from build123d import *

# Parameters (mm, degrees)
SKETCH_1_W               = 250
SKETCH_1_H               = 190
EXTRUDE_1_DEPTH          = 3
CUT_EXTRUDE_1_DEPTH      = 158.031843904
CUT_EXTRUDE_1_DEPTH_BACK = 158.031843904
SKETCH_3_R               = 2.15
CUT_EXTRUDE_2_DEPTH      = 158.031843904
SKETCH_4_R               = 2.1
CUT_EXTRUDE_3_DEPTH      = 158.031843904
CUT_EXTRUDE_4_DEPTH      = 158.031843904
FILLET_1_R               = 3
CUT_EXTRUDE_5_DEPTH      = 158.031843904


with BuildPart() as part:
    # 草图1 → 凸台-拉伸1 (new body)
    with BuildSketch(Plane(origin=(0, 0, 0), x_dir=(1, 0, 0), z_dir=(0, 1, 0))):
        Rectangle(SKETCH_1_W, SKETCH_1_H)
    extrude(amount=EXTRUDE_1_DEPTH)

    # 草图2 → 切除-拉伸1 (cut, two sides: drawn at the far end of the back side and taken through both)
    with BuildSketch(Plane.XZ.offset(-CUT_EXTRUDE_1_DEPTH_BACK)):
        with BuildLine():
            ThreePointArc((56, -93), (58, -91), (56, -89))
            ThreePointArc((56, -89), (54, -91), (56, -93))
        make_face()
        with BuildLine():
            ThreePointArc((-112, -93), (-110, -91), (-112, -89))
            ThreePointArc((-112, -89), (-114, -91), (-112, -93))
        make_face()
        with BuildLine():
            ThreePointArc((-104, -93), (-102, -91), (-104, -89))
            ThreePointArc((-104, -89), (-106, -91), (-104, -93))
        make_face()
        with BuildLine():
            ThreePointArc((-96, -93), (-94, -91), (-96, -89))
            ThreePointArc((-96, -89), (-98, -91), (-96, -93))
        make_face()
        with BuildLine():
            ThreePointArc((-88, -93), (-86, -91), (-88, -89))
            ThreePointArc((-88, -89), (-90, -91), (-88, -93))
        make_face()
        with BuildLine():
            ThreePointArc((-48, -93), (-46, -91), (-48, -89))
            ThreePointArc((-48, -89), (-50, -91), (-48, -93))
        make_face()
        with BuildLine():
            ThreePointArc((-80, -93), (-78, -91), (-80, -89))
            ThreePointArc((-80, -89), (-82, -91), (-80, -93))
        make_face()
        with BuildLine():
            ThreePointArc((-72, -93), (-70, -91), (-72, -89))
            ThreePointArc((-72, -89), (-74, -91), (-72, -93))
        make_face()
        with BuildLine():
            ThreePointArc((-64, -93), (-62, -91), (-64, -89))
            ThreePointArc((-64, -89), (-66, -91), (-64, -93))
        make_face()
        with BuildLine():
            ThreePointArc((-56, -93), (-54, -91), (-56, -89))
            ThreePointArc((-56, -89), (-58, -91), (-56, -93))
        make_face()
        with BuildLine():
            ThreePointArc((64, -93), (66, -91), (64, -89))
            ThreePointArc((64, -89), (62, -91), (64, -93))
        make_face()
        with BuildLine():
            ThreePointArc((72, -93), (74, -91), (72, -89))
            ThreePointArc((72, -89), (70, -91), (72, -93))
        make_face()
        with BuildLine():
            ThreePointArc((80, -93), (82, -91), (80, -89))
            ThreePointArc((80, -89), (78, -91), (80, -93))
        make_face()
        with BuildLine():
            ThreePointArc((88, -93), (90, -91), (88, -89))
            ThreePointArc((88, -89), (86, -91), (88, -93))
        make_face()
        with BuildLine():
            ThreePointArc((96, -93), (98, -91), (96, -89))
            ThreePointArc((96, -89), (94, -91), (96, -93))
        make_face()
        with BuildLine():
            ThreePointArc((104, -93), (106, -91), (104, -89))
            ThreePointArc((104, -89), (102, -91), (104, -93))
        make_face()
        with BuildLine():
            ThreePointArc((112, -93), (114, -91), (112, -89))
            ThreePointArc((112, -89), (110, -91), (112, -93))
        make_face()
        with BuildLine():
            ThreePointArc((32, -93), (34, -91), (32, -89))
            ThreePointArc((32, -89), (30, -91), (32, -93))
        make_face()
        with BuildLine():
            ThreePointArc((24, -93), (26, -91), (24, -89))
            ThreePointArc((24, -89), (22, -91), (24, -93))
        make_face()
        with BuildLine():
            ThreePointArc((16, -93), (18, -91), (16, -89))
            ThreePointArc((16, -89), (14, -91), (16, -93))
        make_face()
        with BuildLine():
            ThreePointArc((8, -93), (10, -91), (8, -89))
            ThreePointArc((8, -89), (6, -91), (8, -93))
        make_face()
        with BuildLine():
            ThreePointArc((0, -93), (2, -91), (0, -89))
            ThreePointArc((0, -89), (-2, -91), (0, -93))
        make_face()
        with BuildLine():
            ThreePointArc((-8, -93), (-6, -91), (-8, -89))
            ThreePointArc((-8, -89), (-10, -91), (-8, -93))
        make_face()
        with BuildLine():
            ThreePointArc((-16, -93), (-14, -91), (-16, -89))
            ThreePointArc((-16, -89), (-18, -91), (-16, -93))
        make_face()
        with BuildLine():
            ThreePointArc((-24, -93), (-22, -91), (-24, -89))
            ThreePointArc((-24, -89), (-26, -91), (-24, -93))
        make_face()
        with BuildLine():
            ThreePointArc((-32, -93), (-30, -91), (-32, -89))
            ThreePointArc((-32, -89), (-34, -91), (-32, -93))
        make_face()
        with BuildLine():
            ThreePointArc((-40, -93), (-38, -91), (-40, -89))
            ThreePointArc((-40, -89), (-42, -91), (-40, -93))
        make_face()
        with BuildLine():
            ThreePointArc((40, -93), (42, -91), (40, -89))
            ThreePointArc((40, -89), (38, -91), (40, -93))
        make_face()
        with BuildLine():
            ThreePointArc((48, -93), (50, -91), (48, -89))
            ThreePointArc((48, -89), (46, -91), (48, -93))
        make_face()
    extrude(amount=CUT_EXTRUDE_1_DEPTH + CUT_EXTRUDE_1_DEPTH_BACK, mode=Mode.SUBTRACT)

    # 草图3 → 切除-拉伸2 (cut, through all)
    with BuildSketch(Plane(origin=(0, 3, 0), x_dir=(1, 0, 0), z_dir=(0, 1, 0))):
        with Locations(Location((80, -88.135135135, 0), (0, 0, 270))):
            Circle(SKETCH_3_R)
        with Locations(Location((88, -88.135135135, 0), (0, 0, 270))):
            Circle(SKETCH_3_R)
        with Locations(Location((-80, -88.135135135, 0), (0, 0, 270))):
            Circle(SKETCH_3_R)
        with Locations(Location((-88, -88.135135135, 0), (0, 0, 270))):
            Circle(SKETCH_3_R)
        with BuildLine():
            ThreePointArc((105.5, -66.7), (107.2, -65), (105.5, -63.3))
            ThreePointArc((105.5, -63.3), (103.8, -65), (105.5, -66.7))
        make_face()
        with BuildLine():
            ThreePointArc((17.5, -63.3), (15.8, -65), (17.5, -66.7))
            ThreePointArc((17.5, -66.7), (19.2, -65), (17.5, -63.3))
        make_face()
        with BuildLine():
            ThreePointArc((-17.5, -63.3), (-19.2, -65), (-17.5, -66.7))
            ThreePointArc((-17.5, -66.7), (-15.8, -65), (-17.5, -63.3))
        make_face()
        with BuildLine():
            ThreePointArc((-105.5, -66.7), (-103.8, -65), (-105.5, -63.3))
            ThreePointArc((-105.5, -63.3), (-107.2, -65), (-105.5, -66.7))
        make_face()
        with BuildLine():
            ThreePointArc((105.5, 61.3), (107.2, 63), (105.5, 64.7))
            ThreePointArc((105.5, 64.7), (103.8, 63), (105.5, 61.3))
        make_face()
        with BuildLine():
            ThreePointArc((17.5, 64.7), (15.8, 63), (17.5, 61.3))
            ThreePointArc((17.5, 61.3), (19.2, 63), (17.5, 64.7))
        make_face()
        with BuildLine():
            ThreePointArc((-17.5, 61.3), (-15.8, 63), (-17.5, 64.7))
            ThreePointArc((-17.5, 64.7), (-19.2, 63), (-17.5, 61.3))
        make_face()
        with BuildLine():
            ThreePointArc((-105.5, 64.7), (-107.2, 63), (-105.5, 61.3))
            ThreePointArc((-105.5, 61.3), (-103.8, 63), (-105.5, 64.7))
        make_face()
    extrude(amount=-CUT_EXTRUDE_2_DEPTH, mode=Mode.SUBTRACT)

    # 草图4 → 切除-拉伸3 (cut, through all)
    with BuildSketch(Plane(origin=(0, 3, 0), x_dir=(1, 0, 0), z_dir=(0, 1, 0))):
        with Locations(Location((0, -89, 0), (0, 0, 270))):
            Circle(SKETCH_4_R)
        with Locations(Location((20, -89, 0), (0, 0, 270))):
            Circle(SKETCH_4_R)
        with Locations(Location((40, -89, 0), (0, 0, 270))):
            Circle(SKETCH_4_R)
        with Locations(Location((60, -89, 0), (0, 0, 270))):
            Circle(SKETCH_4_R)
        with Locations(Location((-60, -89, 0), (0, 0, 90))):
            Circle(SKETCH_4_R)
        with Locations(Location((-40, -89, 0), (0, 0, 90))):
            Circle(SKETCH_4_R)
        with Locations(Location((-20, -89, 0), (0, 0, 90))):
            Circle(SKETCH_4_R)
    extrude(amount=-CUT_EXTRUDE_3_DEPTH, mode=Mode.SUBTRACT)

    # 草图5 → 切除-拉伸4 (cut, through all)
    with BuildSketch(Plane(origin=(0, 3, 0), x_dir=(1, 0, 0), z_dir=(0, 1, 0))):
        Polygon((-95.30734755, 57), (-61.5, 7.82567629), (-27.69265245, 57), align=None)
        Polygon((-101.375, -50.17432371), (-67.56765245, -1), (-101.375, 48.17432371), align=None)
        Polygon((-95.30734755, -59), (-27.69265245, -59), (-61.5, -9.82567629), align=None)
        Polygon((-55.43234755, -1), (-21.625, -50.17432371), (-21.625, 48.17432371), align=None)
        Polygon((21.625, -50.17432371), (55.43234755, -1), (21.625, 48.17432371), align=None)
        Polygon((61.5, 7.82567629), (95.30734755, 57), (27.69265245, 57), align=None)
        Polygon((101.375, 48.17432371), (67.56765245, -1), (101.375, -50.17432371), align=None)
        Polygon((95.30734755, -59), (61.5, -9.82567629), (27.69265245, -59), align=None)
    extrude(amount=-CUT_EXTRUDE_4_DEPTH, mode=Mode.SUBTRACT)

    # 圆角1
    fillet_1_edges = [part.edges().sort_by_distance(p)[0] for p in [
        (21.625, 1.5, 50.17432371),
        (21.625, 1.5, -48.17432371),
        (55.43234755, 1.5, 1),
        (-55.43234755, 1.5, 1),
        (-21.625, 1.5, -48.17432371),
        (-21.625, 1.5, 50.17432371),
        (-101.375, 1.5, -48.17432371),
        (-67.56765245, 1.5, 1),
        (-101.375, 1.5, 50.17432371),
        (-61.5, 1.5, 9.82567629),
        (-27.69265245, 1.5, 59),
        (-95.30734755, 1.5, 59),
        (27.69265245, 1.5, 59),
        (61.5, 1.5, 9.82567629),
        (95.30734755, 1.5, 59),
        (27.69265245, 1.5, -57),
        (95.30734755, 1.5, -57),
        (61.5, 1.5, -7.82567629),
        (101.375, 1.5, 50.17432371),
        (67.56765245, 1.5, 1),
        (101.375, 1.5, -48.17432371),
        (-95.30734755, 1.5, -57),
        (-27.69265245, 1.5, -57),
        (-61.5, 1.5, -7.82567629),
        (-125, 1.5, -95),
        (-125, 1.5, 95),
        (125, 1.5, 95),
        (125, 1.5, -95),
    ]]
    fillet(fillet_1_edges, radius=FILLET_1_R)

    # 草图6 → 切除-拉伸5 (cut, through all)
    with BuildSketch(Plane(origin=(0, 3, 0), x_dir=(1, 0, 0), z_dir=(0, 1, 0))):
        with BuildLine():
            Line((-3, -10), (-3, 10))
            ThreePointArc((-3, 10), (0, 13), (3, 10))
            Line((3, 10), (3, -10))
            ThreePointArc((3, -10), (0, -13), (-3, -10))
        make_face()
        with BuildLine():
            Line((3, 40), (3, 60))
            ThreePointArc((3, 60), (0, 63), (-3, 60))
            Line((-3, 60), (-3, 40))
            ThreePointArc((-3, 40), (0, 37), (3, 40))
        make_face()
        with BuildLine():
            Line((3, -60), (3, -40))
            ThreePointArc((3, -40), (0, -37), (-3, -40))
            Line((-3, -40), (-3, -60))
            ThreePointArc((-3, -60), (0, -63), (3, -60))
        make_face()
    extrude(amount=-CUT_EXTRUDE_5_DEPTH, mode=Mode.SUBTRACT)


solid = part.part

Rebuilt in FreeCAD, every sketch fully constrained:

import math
import FreeCAD as App
import Part
import Sketcher
from FreeCAD import Vector
Q = App.Units.Quantity


def edges_at(feature, points):
    """Names of the edges that pass closest to the given points."""
    edges = feature.Shape.Edges
    near = lambda p: min(range(len(edges)), key=lambda i: edges[i].distToShape(Part.Vertex(*p))[0])
    return sorted({f"Edge{near(p) + 1}" for p in points})

doc = App.newDocument("Part")
params = doc.addObject("Spreadsheet::Sheet", "Params")
for row, (alias, value) in enumerate([
    ("sketch1_width", "250 mm"),
    ("sketch1_height", "190 mm"),
    ("pad1_length", "3 mm"),
    ("sketch2_diameter", "4 mm"),
    ("sketch3_diameter", "4.3 mm"),
    ("sketch3_diameter2", "3.4 mm"),
    ("sketch4_diameter", "4.2 mm"),
    ("fillet_radius", "3 mm"),
    ("sketch6_radius", "3 mm"),
    ("sketch6_height", "20 mm"),
], start=1):
    params.set(f"A{row}", alias)
    params.set(f"B{row}", "=" + value)
    params.setAlias(f"B{row}", alias)

body = doc.addObject("PartDesign::Body", "Body")

# Sketch on XZ plane
sketch1 = body.newObject("Sketcher::SketchObject", "Sketch")
sketch1.AttachmentSupport = (doc.getObject("XZ_Plane"), [""])
sketch1.MapMode = "FlatFace"
sketch1.addGeometry([
    Part.LineSegment(Vector(-125, -95, 0), Vector(-125, 95, 0)),
    Part.LineSegment(Vector(-125, 95, 0), Vector(125, 95, 0)),
    Part.LineSegment(Vector(125, 95, 0), Vector(125, -95, 0)),
    Part.LineSegment(Vector(125, -95, 0), Vector(-125, -95, 0)),
], False)
sketch1.addConstraint([
    Sketcher.Constraint("Coincident", 0, 2, 1, 1),
    Sketcher.Constraint("Coincident", 1, 2, 2, 1),
    Sketcher.Constraint("Coincident", 2, 2, 3, 1),
    Sketcher.Constraint("Coincident", 3, 2, 0, 1),
    Sketcher.Constraint("Vertical", 0),
    Sketcher.Constraint("Horizontal", 1),
    Sketcher.Constraint("Vertical", 2),
    Sketcher.Constraint("Horizontal", 3),
    Sketcher.Constraint("Symmetric", 0, 2, 2, 2, -1, 1),
    Sketcher.Constraint("DistanceX", 1, 1, 1, 2, Q("250 mm")),
    Sketcher.Constraint("DistanceY", 0, 1, 0, 2, Q("190 mm")),
])
sketch1.setExpression("Constraints[9]", "Params.sketch1_width")
sketch1.setExpression("Constraints[10]", "Params.sketch1_height")
pad1 = body.newObject("PartDesign::Pad", "Pad")
pad1.Profile = sketch1
pad1.setExpression("Length", "Params.pad1_length")
pad1.Reversed = True

# Sketch on XZ plane
sketch2 = body.newObject("Sketcher::SketchObject", "Sketch001")
sketch2.AttachmentSupport = (doc.getObject("XZ_Plane"), [""])
sketch2.MapMode = "FlatFace"
sketch2.addGeometry([
    Part.Circle(Vector(56, -91, 0), Vector(0, 0, 1), 2),  # 0
    Part.Circle(Vector(-112, -91, 0), Vector(0, 0, 1), 2),  # 1
    Part.Circle(Vector(-104, -91, 0), Vector(0, 0, 1), 2),  # 2
    Part.Circle(Vector(-96, -91, 0), Vector(0, 0, 1), 2),  # 3
    Part.Circle(Vector(-88, -91, 0), Vector(0, 0, 1), 2),  # 4
    Part.Circle(Vector(-48, -91, 0), Vector(0, 0, 1), 2),  # 5
    Part.Circle(Vector(-80, -91, 0), Vector(0, 0, 1), 2),  # 6
    Part.Circle(Vector(-72, -91, 0), Vector(0, 0, 1), 2),  # 7
    Part.Circle(Vector(-64, -91, 0), Vector(0, 0, 1), 2),  # 8
    Part.Circle(Vector(-56, -91, 0), Vector(0, 0, 1), 2),  # 9
    Part.Circle(Vector(64, -91, 0), Vector(0, 0, 1), 2),  # 10
    Part.Circle(Vector(72, -91, 0), Vector(0, 0, 1), 2),  # 11
    Part.Circle(Vector(80, -91, 0), Vector(0, 0, 1), 2),  # 12
    Part.Circle(Vector(88, -91, 0), Vector(0, 0, 1), 2),  # 13
    Part.Circle(Vector(96, -91, 0), Vector(0, 0, 1), 2),  # 14
    Part.Circle(Vector(104, -91, 0), Vector(0, 0, 1), 2),  # 15
    Part.Circle(Vector(112, -91, 0), Vector(0, 0, 1), 2),  # 16
    Part.Circle(Vector(32, -91, 0), Vector(0, 0, 1), 2),  # 17
    Part.Circle(Vector(24, -91, 0), Vector(0, 0, 1), 2),  # 18
    Part.Circle(Vector(16, -91, 0), Vector(0, 0, 1), 2),  # 19
    Part.Circle(Vector(8, -91, 0), Vector(0, 0, 1), 2),  # 20
    Part.Circle(Vector(0, -91, 0), Vector(0, 0, 1), 2),  # 21
    Part.Circle(Vector(-8, -91, 0), Vector(0, 0, 1), 2),  # 22
    Part.Circle(Vector(-16, -91, 0), Vector(0, 0, 1), 2),  # 23
    Part.Circle(Vector(-24, -91, 0), Vector(0, 0, 1), 2),  # 24
    Part.Circle(Vector(-32, -91, 0), Vector(0, 0, 1), 2),  # 25
    Part.Circle(Vector(-40, -91, 0), Vector(0, 0, 1), 2),  # 26
    Part.Circle(Vector(40, -91, 0), Vector(0, 0, 1), 2),  # 27
    Part.Circle(Vector(48, -91, 0), Vector(0, 0, 1), 2),  # 28
], False)
sketch2.addConstraint([
    Sketcher.Constraint("Equal", 0, 1),
    Sketcher.Constraint("Equal", 1, 2),
    Sketcher.Constraint("Equal", 2, 3),
    Sketcher.Constraint("Equal", 3, 4),
    Sketcher.Constraint("Equal", 4, 5),
    Sketcher.Constraint("Equal", 5, 6),
    Sketcher.Constraint("Equal", 6, 7),
    Sketcher.Constraint("Equal", 7, 8),
    Sketcher.Constraint("Equal", 8, 9),
    Sketcher.Constraint("Equal", 9, 10),
    Sketcher.Constraint("Equal", 10, 11),
    Sketcher.Constraint("Equal", 11, 12),
    Sketcher.Constraint("Equal", 12, 13),
    Sketcher.Constraint("Equal", 13, 14),
    Sketcher.Constraint("Equal", 14, 15),
    Sketcher.Constraint("Equal", 15, 16),
    Sketcher.Constraint("Equal", 16, 17),
    Sketcher.Constraint("Equal", 17, 18),
    Sketcher.Constraint("Equal", 18, 19),
    Sketcher.Constraint("Equal", 19, 20),
    Sketcher.Constraint("Equal", 20, 21),
    Sketcher.Constraint("Equal", 21, 22),
    Sketcher.Constraint("Equal", 22, 23),
    Sketcher.Constraint("Equal", 23, 24),
    Sketcher.Constraint("Equal", 24, 25),
    Sketcher.Constraint("Equal", 25, 26),
    Sketcher.Constraint("Equal", 26, 27),
    Sketcher.Constraint("Equal", 27, 28),
    Sketcher.Constraint("Symmetric", 0, 3, 9, 3, -2),
    Sketcher.Constraint("Symmetric", 8, 3, 10, 3, -2),
    Sketcher.Constraint("Symmetric", 7, 3, 11, 3, -2),
    Sketcher.Constraint("Symmetric", 6, 3, 12, 3, -2),
    Sketcher.Constraint("Symmetric", 4, 3, 13, 3, -2),
    Sketcher.Constraint("Symmetric", 3, 3, 14, 3, -2),
    Sketcher.Constraint("Symmetric", 2, 3, 15, 3, -2),
    Sketcher.Constraint("Symmetric", 1, 3, 16, 3, -2),
    Sketcher.Constraint("Symmetric", 20, 3, 22, 3, -2),
    Sketcher.Constraint("Symmetric", 19, 3, 23, 3, -2),
    Sketcher.Constraint("Symmetric", 18, 3, 24, 3, -2),
    Sketcher.Constraint("Symmetric", 17, 3, 25, 3, -2),
    Sketcher.Constraint("Symmetric", 26, 3, 27, 3, -2),
    Sketcher.Constraint("Symmetric", 5, 3, 28, 3, -2),
    Sketcher.Constraint("PointOnObject", 21, 3, -2),
    Sketcher.Constraint("Horizontal", 0, 3, 1, 3),
    Sketcher.Constraint("Horizontal", 1, 3, 2, 3),
    Sketcher.Constraint("Horizontal", 2, 3, 3, 3),
    Sketcher.Constraint("Horizontal", 3, 3, 4, 3),
    Sketcher.Constraint("Horizontal", 4, 3, 5, 3),
    Sketcher.Constraint("Horizontal", 5, 3, 6, 3),
    Sketcher.Constraint("Horizontal", 6, 3, 7, 3),
    Sketcher.Constraint("Horizontal", 7, 3, 8, 3),
    Sketcher.Constraint("Horizontal", 16, 3, 17, 3),
    Sketcher.Constraint("Horizontal", 17, 3, 18, 3),
    Sketcher.Constraint("Horizontal", 18, 3, 19, 3),
    Sketcher.Constraint("Horizontal", 19, 3, 20, 3),
    Sketcher.Constraint("Horizontal", 20, 3, 21, 3),
    Sketcher.Constraint("Horizontal", 25, 3, 26, 3),
    Sketcher.Constraint("Diameter", 0, Q("4 mm")),
    Sketcher.Constraint("DistanceX", -1, 1, 0, 3, Q("56 mm")),
    Sketcher.Constraint("DistanceY", 0, 3, -1, 1, Q("91 mm")),
    Sketcher.Constraint("DistanceX", 1, 3, -1, 1, Q("112 mm")),
    Sketcher.Constraint("DistanceX", 2, 3, -1, 1, Q("104 mm")),
    Sketcher.Constraint("DistanceX", 3, 3, -1, 1, Q("96 mm")),
    Sketcher.Constraint("DistanceX", 4, 3, -1, 1, Q("88 mm")),
    Sketcher.Constraint("DistanceX", 5, 3, -1, 1, Q("48 mm")),
    Sketcher.Constraint("DistanceX", 6, 3, -1, 1, Q("80 mm")),
    Sketcher.Constraint("DistanceX", 7, 3, -1, 1, Q("72 mm")),
    Sketcher.Constraint("DistanceX", 8, 3, -1, 1, Q("64 mm")),
    Sketcher.Constraint("DistanceX", -1, 1, 17, 3, Q("32 mm")),
    Sketcher.Constraint("DistanceX", -1, 1, 18, 3, Q("24 mm")),
    Sketcher.Constraint("DistanceX", -1, 1, 19, 3, Q("16 mm")),
    Sketcher.Constraint("DistanceX", -1, 1, 20, 3, Q("8 mm")),
    Sketcher.Constraint("DistanceX", 26, 3, -1, 1, Q("40 mm")),
])
sketch2.setExpression("Constraints[57]", "Params.sketch2_diameter")
pocket1 = body.newObject("PartDesign::Pocket", "Pocket")
pocket1.Profile = sketch2
pocket1.Type = "ThroughAll"
pocket1.Midplane = True

# Sketch on XZ plane
sketch3 = body.newObject("Sketcher::SketchObject", "Sketch002")
sketch3.AttachmentSupport = (doc.getObject("XZ_Plane"), [""])
sketch3.MapMode = "FlatFace"
sketch3.AttachmentOffset = App.Placement(Vector(0, 0, -3), App.Rotation())
sketch3.addGeometry([
    Part.Circle(Vector(80, 88.1, 0), Vector(0, 0, 1), 2.1),  # 0
    Part.Circle(Vector(88, 88.1, 0), Vector(0, 0, 1), 2.1),  # 1
    Part.Circle(Vector(-80, 88.1, 0), Vector(0, 0, 1), 2.1),  # 2
    Part.Circle(Vector(-88, 88.1, 0), Vector(0, 0, 1), 2.1),  # 3
    Part.Circle(Vector(105.5, 65, 0), Vector(0, 0, 1), 1.7),  # 4
    Part.Circle(Vector(17.5, 65, 0), Vector(0, 0, 1), 1.7),  # 5
    Part.Circle(Vector(-17.5, 65, 0), Vector(0, 0, 1), 1.7),  # 6
    Part.Circle(Vector(-105.5, 65, 0), Vector(0, 0, 1), 1.7),  # 7
    Part.Circle(Vector(105.5, -63, 0), Vector(0, 0, 1), 1.7),  # 8
    Part.Circle(Vector(17.5, -63, 0), Vector(0, 0, 1), 1.7),  # 9
    Part.Circle(Vector(-17.5, -63, 0), Vector(0, 0, 1), 1.7),  # 10
    Part.Circle(Vector(-105.5, -63, 0), Vector(0, 0, 1), 1.7),  # 11
], False)
sketch3.addConstraint([
    Sketcher.Constraint("Equal", 0, 1),
    Sketcher.Constraint("Equal", 1, 2),
    Sketcher.Constraint("Equal", 2, 3),
    Sketcher.Constraint("Equal", 4, 5),
    Sketcher.Constraint("Equal", 5, 6),
    Sketcher.Constraint("Equal", 6, 7),
    Sketcher.Constraint("Equal", 7, 8),
    Sketcher.Constraint("Equal", 8, 9),
    Sketcher.Constraint("Equal", 9, 10),
    Sketcher.Constraint("Equal", 10, 11),
    Sketcher.Constraint("Symmetric", 0, 3, 2, 3, -2),
    Sketcher.Constraint("Symmetric", 1, 3, 3, 3, -2),
    Sketcher.Constraint("Symmetric", 5, 3, 6, 3, -2),
    Sketcher.Constraint("Symmetric", 4, 3, 7, 3, -2),
    Sketcher.Constraint("Symmetric", 9, 3, 10, 3, -2),
    Sketcher.Constraint("Symmetric", 8, 3, 11, 3, -2),
    Sketcher.Constraint("Horizontal", 0, 3, 1, 3),
    Sketcher.Constraint("Horizontal", 4, 3, 5, 3),
    Sketcher.Constraint("Horizontal", 8, 3, 9, 3),
    Sketcher.Constraint("Vertical", 4, 3, 8, 3),
    Sketcher.Constraint("Vertical", 5, 3, 9, 3),
    Sketcher.Constraint("Diameter", 0, Q("4.3 mm")),
    Sketcher.Constraint("Diameter", 4, Q("3.4 mm")),
    Sketcher.Constraint("DistanceX", -1, 1, 0, 3, Q("80 mm")),
    Sketcher.Constraint("DistanceX", -1, 1, 1, 3, Q("88 mm")),
    Sketcher.Constraint("DistanceY", -1, 1, 4, 3, Q("65 mm")),
    Sketcher.Constraint("DistanceY", 8, 3, -1, 1, Q("63 mm")),
    Sketcher.Constraint("DistanceX", 5, 3, 4, 3, Q("88 mm")),
    Sketcher.Constraint("DistanceX", 6, 3, 5, 3, Q("35 mm")),
    Sketcher.Constraint("DistanceY", -1, 1, 0, 3, Q("88.135135 mm")),
])
sketch3.setExpression("Constraints[21]", "Params.sketch3_diameter")
sketch3.setExpression("Constraints[22]", "Params.sketch3_diameter2")
pocket2 = body.newObject("PartDesign::Pocket", "Pocket001")
pocket2.Profile = sketch3
pocket2.Type = "ThroughAll"
pocket2.Reversed = True

# Sketch on XZ plane
sketch4 = body.newObject("Sketcher::SketchObject", "Sketch003")
sketch4.AttachmentSupport = (doc.getObject("XZ_Plane"), [""])
sketch4.MapMode = "FlatFace"
sketch4.AttachmentOffset = App.Placement(Vector(0, 0, -3), App.Rotation())
sketch4.addGeometry([
    Part.Circle(Vector(0, 89, 0), Vector(0, 0, 1), 2.1),  # 0
    Part.Circle(Vector(20, 89, 0), Vector(0, 0, 1), 2.1),  # 1
    Part.Circle(Vector(40, 89, 0), Vector(0, 0, 1), 2.1),  # 2
    Part.Circle(Vector(60, 89, 0), Vector(0, 0, 1), 2.1),  # 3
    Part.Circle(Vector(-60, 89, 0), Vector(0, 0, 1), 2.1),  # 4
    Part.Circle(Vector(-40, 89, 0), Vector(0, 0, 1), 2.1),  # 5
    Part.Circle(Vector(-20, 89, 0), Vector(0, 0, 1), 2.1),  # 6
], False)
sketch4.addConstraint([
    Sketcher.Constraint("Equal", 0, 1),
    Sketcher.Constraint("Equal", 1, 2),
    Sketcher.Constraint("Equal", 2, 3),
    Sketcher.Constraint("Equal", 3, 4),
    Sketcher.Constraint("Equal", 4, 5),
    Sketcher.Constraint("Equal", 5, 6),
    Sketcher.Constraint("Symmetric", 3, 3, 4, 3, -2),
    Sketcher.Constraint("Symmetric", 2, 3, 5, 3, -2),
    Sketcher.Constraint("Symmetric", 1, 3, 6, 3, -2),
    Sketcher.Constraint("PointOnObject", 0, 3, -2),
    Sketcher.Constraint("Horizontal", 0, 3, 1, 3),
    Sketcher.Constraint("Horizontal", 1, 3, 2, 3),
    Sketcher.Constraint("Horizontal", 2, 3, 3, 3),
    Sketcher.Constraint("Diameter", 0, Q("4.2 mm")),
    Sketcher.Constraint("DistanceY", -1, 1, 0, 3, Q("89 mm")),
    Sketcher.Constraint("DistanceX", -1, 1, 1, 3, Q("20 mm")),
    Sketcher.Constraint("DistanceX", -1, 1, 2, 3, Q("40 mm")),
    Sketcher.Constraint("DistanceX", -1, 1, 3, 3, Q("60 mm")),
])
sketch4.setExpression("Constraints[13]", "Params.sketch4_diameter")
pocket3 = body.newObject("PartDesign::Pocket", "Pocket002")
pocket3.Profile = sketch4
pocket3.Type = "ThroughAll"
pocket3.Reversed = True

# Sketch on XZ plane
sketch5 = body.newObject("Sketcher::SketchObject", "Sketch004")
sketch5.AttachmentSupport = (doc.getObject("XZ_Plane"), [""])
sketch5.MapMode = "FlatFace"
sketch5.AttachmentOffset = App.Placement(Vector(0, 0, -3), App.Rotation())
sketch5.addGeometry([
    Part.LineSegment(Vector(-95, -57, 0), Vector(-62, -8, 0)),  # 0
    Part.LineSegment(Vector(-62, -8, 0), Vector(-28, -57, 0)),  # 1
    Part.LineSegment(Vector(-28, -57, 0), Vector(-95, -57, 0)),  # 2
    Part.LineSegment(Vector(-101, 50, 0), Vector(-68, 1, 0)),  # 3
    Part.LineSegment(Vector(-68, 1, 0), Vector(-101, -48, 0)),  # 4
    Part.LineSegment(Vector(-101, -48, 0), Vector(-101, 50, 0)),  # 5
    Part.LineSegment(Vector(-95, 59, 0), Vector(-28, 59, 0)),  # 6
    Part.LineSegment(Vector(-28, 59, 0), Vector(-62, 10, 0)),  # 7
    Part.LineSegment(Vector(-62, 10, 0), Vector(-95, 59, 0)),  # 8
    Part.LineSegment(Vector(-55, 1, 0), Vector(-22, 50, 0)),  # 9
    Part.LineSegment(Vector(-22, 50, 0), Vector(-22, -48, 0)),  # 10
    Part.LineSegment(Vector(-22, -48, 0), Vector(-55, 1, 0)),  # 11
    Part.LineSegment(Vector(22, 50, 0), Vector(55, 1, 0)),  # 12
    Part.LineSegment(Vector(55, 1, 0), Vector(22, -48, 0)),  # 13
    Part.LineSegment(Vector(22, -48, 0), Vector(22, 50, 0)),  # 14
    Part.LineSegment(Vector(62, -8, 0), Vector(95, -57, 0)),  # 15
    Part.LineSegment(Vector(95, -57, 0), Vector(28, -57, 0)),  # 16
    Part.LineSegment(Vector(28, -57, 0), Vector(62, -8, 0)),  # 17
    Part.LineSegment(Vector(101, -48, 0), Vector(68, 1, 0)),  # 18
    Part.LineSegment(Vector(68, 1, 0), Vector(101, 50, 0)),  # 19
    Part.LineSegment(Vector(101, 50, 0), Vector(101, -48, 0)),  # 20
    Part.LineSegment(Vector(95, 59, 0), Vector(62, 10, 0)),  # 21
    Part.LineSegment(Vector(62, 10, 0), Vector(28, 59, 0)),  # 22
    Part.LineSegment(Vector(28, 59, 0), Vector(95, 59, 0)),  # 23
], False)
sketch5.addConstraint([
    Sketcher.Constraint("Coincident", 0, 2, 1, 1),
    Sketcher.Constraint("Coincident", 1, 2, 2, 1),
    Sketcher.Constraint("Coincident", 2, 2, 0, 1),
    Sketcher.Constraint("Coincident", 3, 2, 4, 1),
    Sketcher.Constraint("Coincident", 4, 2, 5, 1),
    Sketcher.Constraint("Coincident", 5, 2, 3, 1),
    Sketcher.Constraint("Coincident", 6, 2, 7, 1),
    Sketcher.Constraint("Coincident", 7, 2, 8, 1),
    Sketcher.Constraint("Coincident", 8, 2, 6, 1),
    Sketcher.Constraint("Coincident", 9, 2, 10, 1),
    Sketcher.Constraint("Coincident", 10, 2, 11, 1),
    Sketcher.Constraint("Coincident", 11, 2, 9, 1),
    Sketcher.Constraint("Coincident", 12, 2, 13, 1),
    Sketcher.Constraint("Coincident", 13, 2, 14, 1),
    Sketcher.Constraint("Coincident", 14, 2, 12, 1),
    Sketcher.Constraint("Coincident", 15, 2, 16, 1),
    Sketcher.Constraint("Coincident", 16, 2, 17, 1),
    Sketcher.Constraint("Coincident", 17, 2, 15, 1),
    Sketcher.Constraint("Coincident", 18, 2, 19, 1),
    Sketcher.Constraint("Coincident", 19, 2, 20, 1),
    Sketcher.Constraint("Coincident", 20, 2, 18, 1),
    Sketcher.Constraint("Coincident", 21, 2, 22, 1),
    Sketcher.Constraint("Coincident", 22, 2, 23, 1),
    Sketcher.Constraint("Coincident", 23, 2, 21, 1),
    Sketcher.Constraint("Horizontal", 2),
    Sketcher.Constraint("Vertical", 5),
    Sketcher.Constraint("Horizontal", 6),
    Sketcher.Constraint("Vertical", 10),
    Sketcher.Constraint("Vertical", 14),
    Sketcher.Constraint("Horizontal", 16),
    Sketcher.Constraint("Vertical", 20),
    Sketcher.Constraint("Horizontal", 23),
    Sketcher.Constraint("Symmetric", 11, 2, 12, 2, -2),
    Sketcher.Constraint("Symmetric", 10, 2, 13, 2, -2),
    Sketcher.Constraint("Symmetric", 2, 2, 15, 2, -2),
    Sketcher.Constraint("Symmetric", 0, 2, 17, 2, -2),
    Sketcher.Constraint("Symmetric", 3, 2, 18, 2, -2),
    Sketcher.Constraint("Symmetric", 5, 2, 19, 2, -2),
    Sketcher.Constraint("Symmetric", 7, 2, 21, 2, -2),
    Sketcher.Constraint("Symmetric", 6, 2, 22, 2, -2),
    Sketcher.Constraint("Parallel", 1, 3),
    Sketcher.Constraint("Parallel", 0, 4),
    Sketcher.Constraint("Parallel", 4, 7),
    Sketcher.Constraint("Parallel", 3, 8),
    Sketcher.Constraint("Parallel", 7, 9),
    Sketcher.Constraint("Parallel", 8, 11),
    Sketcher.Constraint("Parallel", 11, 12),
    Sketcher.Constraint("Parallel", 9, 13),
    Sketcher.Constraint("Parallel", 13, 17),
    Sketcher.Constraint("Parallel", 15, 18),
    Sketcher.Constraint("Parallel", 19, 21),
    Sketcher.Constraint("Horizontal", 5, 2, 9, 2),
    Sketcher.Constraint("Horizontal", 4, 2, 10, 2),
    Sketcher.Constraint("Vertical", 1, 2, 6, 2),
    Sketcher.Constraint("Vertical", 0, 2, 7, 2),
    Sketcher.Constraint("Equal", 1, 3),
    Sketcher.Constraint("DistanceY", 1, 2, -1, 1, Q("57 mm")),
    Sketcher.Constraint("DistanceY", -1, 1, 3, 2, Q("1 mm")),
    Sketcher.Constraint("DistanceY", -1, 1, 6, 2, Q("59 mm")),
    Sketcher.Constraint("DistanceX", 1, 2, 15, 2, Q("123 mm")),
    Sketcher.Constraint("DistanceX", 10, 2, 13, 2, Q("43.25 mm")),
    Sketcher.Constraint("DistanceX", 14, 2, 19, 2, Q("79.75 mm")),
    Sketcher.Constraint("Distance", 0, Q("59.674541 mm")),
    Sketcher.Constraint("DistanceX", 2, 2, 2, 1, Q("67.614695 mm")),
])
pocket4 = body.newObject("PartDesign::Pocket", "Pocket003")
pocket4.Profile = sketch5
pocket4.Type = "ThroughAll"
pocket4.Reversed = True
doc.recompute()

fillet = body.newObject("PartDesign::Fillet", "Fillet")
fillet.Base = (pocket4, edges_at(pocket4, [
    (21.625, 1.5, 50.174),
    (21.625, 1.5, -48.174),
    (55.432, 1.5, 1),
    (-55.432, 1.5, 1),
    (-21.625, 1.5, -48.174),
    (-21.625, 1.5, 50.174),
    (-101.375, 1.5, -48.174),
    (-67.568, 1.5, 1),
    (-101.375, 1.5, 50.174),
    (-61.5, 1.5, 9.826),
    (-27.693, 1.5, 59),
    (-95.307, 1.5, 59),
    (27.693, 1.5, 59),
    (61.5, 1.5, 9.826),
    (95.307, 1.5, 59),
    (27.693, 1.5, -57),
    (95.307, 1.5, -57),
    (61.5, 1.5, -7.826),
    (101.375, 1.5, 50.174),
    (67.568, 1.5, 1),
    (101.375, 1.5, -48.174),
    (-95.307, 1.5, -57),
    (-27.693, 1.5, -57),
    (-61.5, 1.5, -7.826),
    (-125, 1.5, -95),
    (-125, 1.5, 95),
    (125, 1.5, 95),
    (125, 1.5, -95),
]))
fillet.setExpression("Radius", "Params.fillet_radius")

# Sketch on XZ plane
sketch6 = body.newObject("Sketcher::SketchObject", "Sketch005")
sketch6.AttachmentSupport = (doc.getObject("XZ_Plane"), [""])
sketch6.MapMode = "FlatFace"
sketch6.AttachmentOffset = App.Placement(Vector(0, 0, -3), App.Rotation())
sketch6.addGeometry([
    Part.LineSegment(Vector(-3, -10, 0), Vector(-3, 10, 0)),  # 0
    Part.ArcOfCircle(Part.Circle(Vector(0, 10, 0), Vector(0, 0, 1), 3), math.radians(0), math.radians(180)),  # 1
    Part.LineSegment(Vector(3, 10, 0), Vector(3, -10, 0)),  # 2
    Part.ArcOfCircle(Part.Circle(Vector(0, -10, 0), Vector(0, 0, 1), 3), math.radians(180), math.radians(360)),  # 3
    Part.LineSegment(Vector(3, -40, 0), Vector(3, -60, 0)),  # 4
    Part.ArcOfCircle(Part.Circle(Vector(0, -60, 0), Vector(0, 0, 1), 3), math.radians(180), math.radians(360)),  # 5
    Part.LineSegment(Vector(-3, -60, 0), Vector(-3, -40, 0)),  # 6
    Part.ArcOfCircle(Part.Circle(Vector(0, -40, 0), Vector(0, 0, 1), 3), math.radians(0), math.radians(180)),  # 7
    Part.LineSegment(Vector(3, 60, 0), Vector(3, 40, 0)),  # 8
    Part.ArcOfCircle(Part.Circle(Vector(0, 40, 0), Vector(0, 0, 1), 3), math.radians(180), math.radians(360)),  # 9
    Part.LineSegment(Vector(-3, 40, 0), Vector(-3, 60, 0)),  # 10
    Part.ArcOfCircle(Part.Circle(Vector(0, 60, 0), Vector(0, 0, 1), 3), math.radians(0), math.radians(180)),  # 11
], False)
sketch6.addConstraint([
    Sketcher.Constraint("Tangent", 0, 2, 1, 2),
    Sketcher.Constraint("Tangent", 1, 1, 2, 1),
    Sketcher.Constraint("Tangent", 2, 2, 3, 2),
    Sketcher.Constraint("Tangent", 3, 1, 0, 1),
    Sketcher.Constraint("Tangent", 4, 2, 5, 2),
    Sketcher.Constraint("Tangent", 5, 1, 6, 1),
    Sketcher.Constraint("Tangent", 6, 2, 7, 2),
    Sketcher.Constraint("Tangent", 7, 1, 4, 1),
    Sketcher.Constraint("Tangent", 8, 2, 9, 2),
    Sketcher.Constraint("Tangent", 9, 1, 10, 1),
    Sketcher.Constraint("Tangent", 10, 2, 11, 2),
    Sketcher.Constraint("Tangent", 11, 1, 8, 1),
    Sketcher.Constraint("Vertical", 0),
    Sketcher.Constraint("Vertical", 2),
    Sketcher.Constraint("Vertical", 4),
    Sketcher.Constraint("Vertical", 6),
    Sketcher.Constraint("Vertical", 8),
    Sketcher.Constraint("Vertical", 10),
    Sketcher.Constraint("Equal", 3, 5),
    Sketcher.Constraint("Equal", 7, 9),
    Sketcher.Constraint("Symmetric", 1, 3, 3, 3, -1, 1),
    Sketcher.Constraint("Symmetric", 7, 3, 9, 3, -1, 1),
    Sketcher.Constraint("Symmetric", 5, 3, 11, 3, -1),
    Sketcher.Constraint("Equal", 2, 4),
    Sketcher.Constraint("Radius", 1, Q("3 mm")),
    Sketcher.Constraint("DistanceY", 0, 1, 0, 2, Q("20 mm")),
    Sketcher.Constraint("DistanceY", 5, 3, -1, 1, Q("60 mm")),
])
sketch6.setExpression("Constraints[24]", "Params.sketch6_radius")
sketch6.setExpression("Constraints[25]", "Params.sketch6_height")
pocket5 = body.newObject("PartDesign::Pocket", "Pocket004")
pocket5.Profile = sketch6
pocket5.Type = "ThroughAll"
pocket5.Reversed = True

doc.recompute()
